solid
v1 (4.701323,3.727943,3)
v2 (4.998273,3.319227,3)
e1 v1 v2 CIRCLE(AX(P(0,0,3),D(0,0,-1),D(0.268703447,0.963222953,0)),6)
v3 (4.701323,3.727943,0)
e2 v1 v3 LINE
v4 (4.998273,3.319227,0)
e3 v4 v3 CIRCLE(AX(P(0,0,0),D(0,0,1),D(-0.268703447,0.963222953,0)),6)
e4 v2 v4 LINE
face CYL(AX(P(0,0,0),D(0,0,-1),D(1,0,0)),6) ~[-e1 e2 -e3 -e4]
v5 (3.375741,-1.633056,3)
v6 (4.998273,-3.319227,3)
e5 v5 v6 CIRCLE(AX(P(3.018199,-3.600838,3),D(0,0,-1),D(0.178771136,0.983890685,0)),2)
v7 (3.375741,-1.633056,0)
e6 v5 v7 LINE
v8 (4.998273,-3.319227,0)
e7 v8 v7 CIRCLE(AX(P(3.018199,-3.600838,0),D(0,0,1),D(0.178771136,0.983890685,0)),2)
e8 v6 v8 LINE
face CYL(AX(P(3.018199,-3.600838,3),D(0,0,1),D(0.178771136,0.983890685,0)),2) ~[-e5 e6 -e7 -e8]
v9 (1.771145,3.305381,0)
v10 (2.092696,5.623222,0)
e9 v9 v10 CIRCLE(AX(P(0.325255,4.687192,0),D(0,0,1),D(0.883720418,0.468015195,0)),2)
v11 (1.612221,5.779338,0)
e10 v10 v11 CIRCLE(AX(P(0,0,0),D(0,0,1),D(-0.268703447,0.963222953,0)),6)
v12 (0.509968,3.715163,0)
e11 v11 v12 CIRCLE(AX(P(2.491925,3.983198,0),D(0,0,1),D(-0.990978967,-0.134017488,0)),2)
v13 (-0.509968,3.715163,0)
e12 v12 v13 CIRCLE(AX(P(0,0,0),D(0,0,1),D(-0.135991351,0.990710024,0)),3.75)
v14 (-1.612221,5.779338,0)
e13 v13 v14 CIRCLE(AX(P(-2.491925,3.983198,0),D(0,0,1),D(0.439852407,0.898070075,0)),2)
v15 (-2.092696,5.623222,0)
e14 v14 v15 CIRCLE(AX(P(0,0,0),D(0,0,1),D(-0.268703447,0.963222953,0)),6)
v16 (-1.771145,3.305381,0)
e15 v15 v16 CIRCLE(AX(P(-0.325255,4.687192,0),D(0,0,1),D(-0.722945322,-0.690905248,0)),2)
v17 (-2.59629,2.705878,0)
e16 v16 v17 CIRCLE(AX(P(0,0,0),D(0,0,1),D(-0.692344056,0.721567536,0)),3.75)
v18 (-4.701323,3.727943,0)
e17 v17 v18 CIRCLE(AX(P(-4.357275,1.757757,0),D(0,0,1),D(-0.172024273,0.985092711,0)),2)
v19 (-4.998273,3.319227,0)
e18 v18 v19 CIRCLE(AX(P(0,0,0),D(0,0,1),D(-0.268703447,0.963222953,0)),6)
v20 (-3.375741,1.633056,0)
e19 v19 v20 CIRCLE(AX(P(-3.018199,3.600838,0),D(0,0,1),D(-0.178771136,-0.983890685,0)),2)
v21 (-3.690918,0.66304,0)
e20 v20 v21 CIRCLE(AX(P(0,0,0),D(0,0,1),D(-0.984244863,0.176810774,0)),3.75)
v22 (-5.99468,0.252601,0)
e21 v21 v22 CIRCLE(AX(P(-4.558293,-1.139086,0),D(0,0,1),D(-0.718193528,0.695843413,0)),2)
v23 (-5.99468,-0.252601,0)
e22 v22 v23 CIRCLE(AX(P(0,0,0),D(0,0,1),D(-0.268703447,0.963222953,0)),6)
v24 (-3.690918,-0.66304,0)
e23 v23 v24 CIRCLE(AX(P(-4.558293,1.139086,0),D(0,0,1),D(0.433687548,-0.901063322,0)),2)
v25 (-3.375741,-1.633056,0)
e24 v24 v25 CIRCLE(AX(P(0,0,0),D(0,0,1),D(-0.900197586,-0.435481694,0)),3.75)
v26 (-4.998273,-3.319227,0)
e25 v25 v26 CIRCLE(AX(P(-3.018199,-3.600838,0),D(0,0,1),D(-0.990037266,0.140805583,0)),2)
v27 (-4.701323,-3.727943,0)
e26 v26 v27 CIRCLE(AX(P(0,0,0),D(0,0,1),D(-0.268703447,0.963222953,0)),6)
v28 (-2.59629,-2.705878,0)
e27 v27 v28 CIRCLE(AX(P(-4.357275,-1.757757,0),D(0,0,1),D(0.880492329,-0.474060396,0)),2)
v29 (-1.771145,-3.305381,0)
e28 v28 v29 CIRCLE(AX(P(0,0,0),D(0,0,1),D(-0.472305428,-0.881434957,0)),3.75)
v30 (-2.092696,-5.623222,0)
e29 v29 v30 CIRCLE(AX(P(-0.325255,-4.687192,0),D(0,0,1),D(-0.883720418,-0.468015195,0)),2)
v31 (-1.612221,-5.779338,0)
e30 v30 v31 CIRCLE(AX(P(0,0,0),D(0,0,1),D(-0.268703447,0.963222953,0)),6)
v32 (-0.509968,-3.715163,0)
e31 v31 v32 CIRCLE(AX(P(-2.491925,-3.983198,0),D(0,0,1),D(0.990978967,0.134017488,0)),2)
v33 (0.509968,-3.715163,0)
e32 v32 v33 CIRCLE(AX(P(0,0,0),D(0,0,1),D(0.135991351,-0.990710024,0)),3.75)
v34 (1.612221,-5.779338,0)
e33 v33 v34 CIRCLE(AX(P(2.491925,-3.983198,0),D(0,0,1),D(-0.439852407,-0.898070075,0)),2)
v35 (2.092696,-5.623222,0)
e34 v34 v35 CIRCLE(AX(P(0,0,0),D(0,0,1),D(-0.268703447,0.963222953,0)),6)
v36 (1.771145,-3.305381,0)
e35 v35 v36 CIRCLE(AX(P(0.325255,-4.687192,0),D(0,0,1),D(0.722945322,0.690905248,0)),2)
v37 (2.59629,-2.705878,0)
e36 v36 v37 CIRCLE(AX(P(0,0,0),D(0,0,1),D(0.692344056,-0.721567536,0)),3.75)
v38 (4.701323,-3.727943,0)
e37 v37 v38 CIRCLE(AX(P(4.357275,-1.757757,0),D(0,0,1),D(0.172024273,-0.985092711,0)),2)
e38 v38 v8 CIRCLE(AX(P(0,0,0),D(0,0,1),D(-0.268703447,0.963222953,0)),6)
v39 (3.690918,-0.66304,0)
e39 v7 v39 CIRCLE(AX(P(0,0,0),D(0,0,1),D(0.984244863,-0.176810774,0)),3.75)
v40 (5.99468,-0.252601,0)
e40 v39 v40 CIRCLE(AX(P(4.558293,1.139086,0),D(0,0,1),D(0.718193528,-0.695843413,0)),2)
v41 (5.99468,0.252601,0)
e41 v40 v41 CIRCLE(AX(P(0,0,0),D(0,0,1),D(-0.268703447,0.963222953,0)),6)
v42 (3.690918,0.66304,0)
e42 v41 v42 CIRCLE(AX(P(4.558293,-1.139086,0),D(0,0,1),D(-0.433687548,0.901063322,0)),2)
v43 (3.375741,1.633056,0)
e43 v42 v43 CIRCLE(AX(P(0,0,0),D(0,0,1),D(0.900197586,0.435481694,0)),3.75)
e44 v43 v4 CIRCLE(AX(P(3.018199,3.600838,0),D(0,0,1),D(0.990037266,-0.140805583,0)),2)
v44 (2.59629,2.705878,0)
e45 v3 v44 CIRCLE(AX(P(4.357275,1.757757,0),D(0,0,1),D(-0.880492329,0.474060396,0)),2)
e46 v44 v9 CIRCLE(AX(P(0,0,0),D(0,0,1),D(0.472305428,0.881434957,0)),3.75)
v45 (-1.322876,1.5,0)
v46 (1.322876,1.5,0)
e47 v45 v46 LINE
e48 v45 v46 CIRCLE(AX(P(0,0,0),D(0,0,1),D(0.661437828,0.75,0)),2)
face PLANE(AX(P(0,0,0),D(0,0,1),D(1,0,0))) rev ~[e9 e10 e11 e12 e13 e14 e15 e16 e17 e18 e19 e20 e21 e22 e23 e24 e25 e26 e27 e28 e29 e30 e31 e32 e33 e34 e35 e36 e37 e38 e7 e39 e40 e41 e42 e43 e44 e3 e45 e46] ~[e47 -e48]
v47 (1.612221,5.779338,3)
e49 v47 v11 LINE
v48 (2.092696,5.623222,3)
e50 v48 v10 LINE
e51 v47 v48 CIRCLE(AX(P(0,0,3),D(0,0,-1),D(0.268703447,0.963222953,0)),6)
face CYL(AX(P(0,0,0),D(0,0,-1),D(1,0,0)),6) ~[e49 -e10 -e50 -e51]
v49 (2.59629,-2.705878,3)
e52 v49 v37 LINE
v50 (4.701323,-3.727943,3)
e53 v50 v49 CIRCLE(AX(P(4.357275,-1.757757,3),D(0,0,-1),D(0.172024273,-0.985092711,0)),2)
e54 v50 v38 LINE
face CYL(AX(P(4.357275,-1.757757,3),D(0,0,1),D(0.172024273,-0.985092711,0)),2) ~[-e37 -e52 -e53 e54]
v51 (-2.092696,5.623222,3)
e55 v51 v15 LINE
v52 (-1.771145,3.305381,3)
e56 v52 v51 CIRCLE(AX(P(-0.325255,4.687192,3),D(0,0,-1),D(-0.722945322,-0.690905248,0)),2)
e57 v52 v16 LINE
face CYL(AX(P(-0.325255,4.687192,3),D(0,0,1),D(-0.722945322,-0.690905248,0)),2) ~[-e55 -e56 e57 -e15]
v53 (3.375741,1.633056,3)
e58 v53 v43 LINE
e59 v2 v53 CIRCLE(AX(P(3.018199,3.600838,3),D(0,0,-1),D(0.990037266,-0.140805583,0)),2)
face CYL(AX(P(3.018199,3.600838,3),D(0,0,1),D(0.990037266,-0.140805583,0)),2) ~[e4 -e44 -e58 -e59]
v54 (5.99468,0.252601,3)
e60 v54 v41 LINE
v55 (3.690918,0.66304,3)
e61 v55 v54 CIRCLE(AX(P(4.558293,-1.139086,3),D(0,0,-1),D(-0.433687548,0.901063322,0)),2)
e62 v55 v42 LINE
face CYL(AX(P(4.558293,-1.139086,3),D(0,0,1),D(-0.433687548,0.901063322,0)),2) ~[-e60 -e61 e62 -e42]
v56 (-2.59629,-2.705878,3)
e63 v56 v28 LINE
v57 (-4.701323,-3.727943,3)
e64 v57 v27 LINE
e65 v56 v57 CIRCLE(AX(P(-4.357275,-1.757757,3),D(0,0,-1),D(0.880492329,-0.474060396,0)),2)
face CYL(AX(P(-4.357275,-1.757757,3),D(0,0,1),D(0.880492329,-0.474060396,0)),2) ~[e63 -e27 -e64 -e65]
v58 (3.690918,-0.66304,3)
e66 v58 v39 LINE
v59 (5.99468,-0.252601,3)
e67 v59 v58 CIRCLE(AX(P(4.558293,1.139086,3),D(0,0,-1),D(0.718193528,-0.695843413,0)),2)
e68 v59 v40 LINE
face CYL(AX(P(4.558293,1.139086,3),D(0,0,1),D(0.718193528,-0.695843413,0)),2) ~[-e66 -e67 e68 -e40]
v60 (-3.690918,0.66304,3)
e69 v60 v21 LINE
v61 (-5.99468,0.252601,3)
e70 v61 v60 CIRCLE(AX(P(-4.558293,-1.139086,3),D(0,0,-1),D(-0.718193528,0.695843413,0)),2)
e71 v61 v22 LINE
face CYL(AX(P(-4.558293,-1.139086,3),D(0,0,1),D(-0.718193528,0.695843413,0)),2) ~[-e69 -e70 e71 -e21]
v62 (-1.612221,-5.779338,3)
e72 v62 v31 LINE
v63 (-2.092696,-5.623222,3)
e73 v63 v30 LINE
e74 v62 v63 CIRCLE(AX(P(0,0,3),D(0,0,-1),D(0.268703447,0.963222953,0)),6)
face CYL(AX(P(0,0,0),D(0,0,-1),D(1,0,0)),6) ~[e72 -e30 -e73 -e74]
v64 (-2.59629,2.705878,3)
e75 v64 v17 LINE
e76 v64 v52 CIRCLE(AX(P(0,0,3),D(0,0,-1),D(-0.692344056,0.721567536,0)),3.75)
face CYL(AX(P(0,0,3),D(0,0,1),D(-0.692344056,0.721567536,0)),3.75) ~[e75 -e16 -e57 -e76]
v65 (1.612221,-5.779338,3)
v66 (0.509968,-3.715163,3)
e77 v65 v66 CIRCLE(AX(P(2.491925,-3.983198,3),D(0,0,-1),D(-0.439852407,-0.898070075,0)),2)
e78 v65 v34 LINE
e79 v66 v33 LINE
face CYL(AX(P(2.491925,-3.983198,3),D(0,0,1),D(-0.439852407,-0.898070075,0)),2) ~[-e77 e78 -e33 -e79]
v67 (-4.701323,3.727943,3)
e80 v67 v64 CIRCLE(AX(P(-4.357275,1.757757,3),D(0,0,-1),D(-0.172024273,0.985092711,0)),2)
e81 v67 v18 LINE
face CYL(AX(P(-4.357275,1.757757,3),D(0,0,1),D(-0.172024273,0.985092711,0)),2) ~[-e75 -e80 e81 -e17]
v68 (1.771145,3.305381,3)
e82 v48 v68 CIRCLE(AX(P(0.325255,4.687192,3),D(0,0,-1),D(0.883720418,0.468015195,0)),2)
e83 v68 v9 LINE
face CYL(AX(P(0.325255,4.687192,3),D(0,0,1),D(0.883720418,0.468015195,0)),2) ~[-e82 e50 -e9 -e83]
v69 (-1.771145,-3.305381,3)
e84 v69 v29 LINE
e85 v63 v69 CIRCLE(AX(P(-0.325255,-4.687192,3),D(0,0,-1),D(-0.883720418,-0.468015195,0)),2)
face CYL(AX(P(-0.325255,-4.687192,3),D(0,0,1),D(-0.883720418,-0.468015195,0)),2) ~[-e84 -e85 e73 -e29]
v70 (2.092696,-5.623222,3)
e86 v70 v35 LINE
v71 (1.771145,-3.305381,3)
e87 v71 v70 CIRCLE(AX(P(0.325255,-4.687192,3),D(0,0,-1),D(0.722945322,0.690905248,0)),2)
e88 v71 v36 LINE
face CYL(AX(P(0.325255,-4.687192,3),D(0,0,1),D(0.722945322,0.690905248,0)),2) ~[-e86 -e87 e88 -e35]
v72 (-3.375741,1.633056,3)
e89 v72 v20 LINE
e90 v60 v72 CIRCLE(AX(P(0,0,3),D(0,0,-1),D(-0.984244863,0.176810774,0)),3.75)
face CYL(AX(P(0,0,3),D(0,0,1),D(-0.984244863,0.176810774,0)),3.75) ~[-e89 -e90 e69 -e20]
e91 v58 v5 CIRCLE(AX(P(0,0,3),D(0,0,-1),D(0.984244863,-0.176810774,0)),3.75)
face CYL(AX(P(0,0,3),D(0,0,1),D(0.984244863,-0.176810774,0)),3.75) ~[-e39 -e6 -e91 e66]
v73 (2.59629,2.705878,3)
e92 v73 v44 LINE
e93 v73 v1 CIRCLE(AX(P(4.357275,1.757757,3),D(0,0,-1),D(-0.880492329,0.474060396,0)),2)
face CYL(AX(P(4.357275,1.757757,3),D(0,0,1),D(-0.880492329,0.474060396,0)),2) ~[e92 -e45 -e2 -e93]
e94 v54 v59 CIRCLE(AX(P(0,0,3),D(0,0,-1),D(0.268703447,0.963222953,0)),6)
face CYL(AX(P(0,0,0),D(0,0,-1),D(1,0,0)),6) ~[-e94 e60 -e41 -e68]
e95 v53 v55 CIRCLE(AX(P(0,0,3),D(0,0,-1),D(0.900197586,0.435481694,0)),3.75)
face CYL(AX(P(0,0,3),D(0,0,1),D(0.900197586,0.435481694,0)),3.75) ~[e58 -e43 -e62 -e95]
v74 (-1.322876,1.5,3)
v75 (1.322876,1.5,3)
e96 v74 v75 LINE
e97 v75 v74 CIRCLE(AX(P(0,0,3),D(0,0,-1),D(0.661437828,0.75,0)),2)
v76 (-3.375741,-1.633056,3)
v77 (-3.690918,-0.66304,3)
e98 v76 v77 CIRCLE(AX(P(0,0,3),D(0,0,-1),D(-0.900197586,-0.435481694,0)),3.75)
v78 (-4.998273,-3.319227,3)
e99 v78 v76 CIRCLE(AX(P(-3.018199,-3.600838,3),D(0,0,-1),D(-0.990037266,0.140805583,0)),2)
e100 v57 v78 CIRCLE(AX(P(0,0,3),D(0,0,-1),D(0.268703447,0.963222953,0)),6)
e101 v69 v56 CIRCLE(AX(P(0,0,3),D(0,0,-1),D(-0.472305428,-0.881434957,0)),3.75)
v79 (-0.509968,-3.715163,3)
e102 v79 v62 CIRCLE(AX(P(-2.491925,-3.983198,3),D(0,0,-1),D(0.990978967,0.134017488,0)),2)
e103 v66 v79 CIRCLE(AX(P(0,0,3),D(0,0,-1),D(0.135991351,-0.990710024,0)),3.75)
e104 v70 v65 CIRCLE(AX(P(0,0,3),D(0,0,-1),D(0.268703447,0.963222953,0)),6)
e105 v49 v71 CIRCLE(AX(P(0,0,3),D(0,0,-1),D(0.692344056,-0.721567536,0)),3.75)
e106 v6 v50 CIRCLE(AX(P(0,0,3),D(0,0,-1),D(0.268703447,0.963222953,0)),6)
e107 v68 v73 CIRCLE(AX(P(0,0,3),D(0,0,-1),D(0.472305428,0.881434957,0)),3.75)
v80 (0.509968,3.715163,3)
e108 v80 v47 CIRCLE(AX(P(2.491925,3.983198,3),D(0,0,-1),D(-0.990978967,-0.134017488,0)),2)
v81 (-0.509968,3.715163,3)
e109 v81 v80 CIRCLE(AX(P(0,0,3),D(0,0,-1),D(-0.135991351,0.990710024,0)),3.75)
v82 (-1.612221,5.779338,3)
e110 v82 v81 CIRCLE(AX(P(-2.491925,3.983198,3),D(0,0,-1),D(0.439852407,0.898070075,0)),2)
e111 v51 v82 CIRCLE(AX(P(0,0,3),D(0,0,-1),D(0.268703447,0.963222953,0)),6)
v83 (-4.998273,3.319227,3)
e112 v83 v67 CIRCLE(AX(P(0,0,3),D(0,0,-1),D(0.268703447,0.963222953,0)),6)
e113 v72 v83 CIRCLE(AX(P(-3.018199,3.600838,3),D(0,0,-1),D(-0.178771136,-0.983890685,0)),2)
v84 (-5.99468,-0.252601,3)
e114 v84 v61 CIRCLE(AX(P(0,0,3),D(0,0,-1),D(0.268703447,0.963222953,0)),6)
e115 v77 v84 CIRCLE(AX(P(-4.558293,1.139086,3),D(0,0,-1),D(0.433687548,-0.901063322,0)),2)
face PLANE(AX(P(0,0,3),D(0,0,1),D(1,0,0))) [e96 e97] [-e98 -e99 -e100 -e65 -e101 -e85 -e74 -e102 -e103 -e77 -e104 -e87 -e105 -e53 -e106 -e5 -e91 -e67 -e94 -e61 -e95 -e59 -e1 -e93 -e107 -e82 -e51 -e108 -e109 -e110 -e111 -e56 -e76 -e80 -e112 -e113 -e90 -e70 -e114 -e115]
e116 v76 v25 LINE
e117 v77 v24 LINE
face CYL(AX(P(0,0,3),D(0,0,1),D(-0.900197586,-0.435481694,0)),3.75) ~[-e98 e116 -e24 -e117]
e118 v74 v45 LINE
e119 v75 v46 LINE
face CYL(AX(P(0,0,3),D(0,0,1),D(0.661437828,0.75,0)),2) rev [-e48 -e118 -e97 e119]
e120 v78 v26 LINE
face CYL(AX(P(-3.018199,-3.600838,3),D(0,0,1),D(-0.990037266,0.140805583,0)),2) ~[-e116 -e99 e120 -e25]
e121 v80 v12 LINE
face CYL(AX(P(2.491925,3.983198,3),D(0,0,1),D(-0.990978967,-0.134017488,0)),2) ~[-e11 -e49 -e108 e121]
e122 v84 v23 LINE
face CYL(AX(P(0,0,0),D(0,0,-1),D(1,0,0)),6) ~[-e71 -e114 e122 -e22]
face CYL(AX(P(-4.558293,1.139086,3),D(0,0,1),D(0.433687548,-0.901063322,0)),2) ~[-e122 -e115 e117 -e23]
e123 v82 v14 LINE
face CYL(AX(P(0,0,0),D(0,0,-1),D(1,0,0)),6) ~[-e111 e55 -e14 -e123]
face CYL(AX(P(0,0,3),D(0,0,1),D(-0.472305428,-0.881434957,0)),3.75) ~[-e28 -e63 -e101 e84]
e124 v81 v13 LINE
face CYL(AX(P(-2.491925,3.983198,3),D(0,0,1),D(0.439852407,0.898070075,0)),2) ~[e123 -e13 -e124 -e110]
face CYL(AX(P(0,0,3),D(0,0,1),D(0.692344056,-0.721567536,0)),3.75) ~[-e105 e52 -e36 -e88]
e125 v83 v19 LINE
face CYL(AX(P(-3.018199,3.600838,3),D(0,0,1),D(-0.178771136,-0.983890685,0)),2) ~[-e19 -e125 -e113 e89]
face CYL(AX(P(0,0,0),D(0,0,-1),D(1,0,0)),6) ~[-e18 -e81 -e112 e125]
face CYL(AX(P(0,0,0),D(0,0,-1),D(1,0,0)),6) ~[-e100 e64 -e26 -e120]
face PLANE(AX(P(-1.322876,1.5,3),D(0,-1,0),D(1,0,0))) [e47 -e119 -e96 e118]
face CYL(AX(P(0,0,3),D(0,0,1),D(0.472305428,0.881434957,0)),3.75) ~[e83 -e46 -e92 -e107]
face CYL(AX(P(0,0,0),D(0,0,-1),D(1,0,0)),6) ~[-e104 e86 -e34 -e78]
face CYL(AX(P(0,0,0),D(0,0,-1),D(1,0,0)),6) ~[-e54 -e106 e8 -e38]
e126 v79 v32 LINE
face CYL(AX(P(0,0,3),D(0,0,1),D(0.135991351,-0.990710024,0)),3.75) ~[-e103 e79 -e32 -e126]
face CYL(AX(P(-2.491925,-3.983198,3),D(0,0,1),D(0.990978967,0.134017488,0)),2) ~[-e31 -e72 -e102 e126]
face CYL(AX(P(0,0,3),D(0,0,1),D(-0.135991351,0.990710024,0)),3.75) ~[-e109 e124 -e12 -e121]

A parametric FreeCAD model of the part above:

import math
import FreeCAD as App
import Part
import Sketcher
from FreeCAD import Vector

doc = App.newDocument("Part")
body = doc.addObject("PartDesign::Body", "Body")

# Sketch on XY plane
sketch1 = body.newObject("Sketcher::SketchObject", "Sketch")
sketch1.AttachmentSupport = (doc.getObject("XY_Plane"), [""])
sketch1.MapMode = "FlatFace"
sketch1.addGeometry(Part.Circle(Vector(0, 0, 0), Vector(0, 0, 1), 6), False)
sketch1.addConstraint(Sketcher.Constraint("Coincident", 0, 3, -1, 1))
sketch1.addConstraint(Sketcher.Constraint("Diameter", 0, 12.0))
pad1 = body.newObject("PartDesign::Pad", "Pad")
pad1.Profile = sketch1
pad1.Length = 3

# Sketch on XY plane
sketch2 = body.newObject("Sketcher::SketchObject", "Sketch001")
sketch2.AttachmentSupport = (doc.getObject("XY_Plane"), [""])
sketch2.MapMode = "FlatFace"
sketch2.AttachmentOffset = App.Placement(Vector(0, 0, 3), App.Rotation())
sketch2.addGeometry(Part.ArcOfCircle(Part.Circle(Vector(-2.491925, 3.983198, 0), Vector(0, 0, 1), 2), math.radians(-7.70181), math.radians(63.905536)), False)
sketch2.addGeometry(Part.ArcOfCircle(Part.Circle(Vector(0, 0, 0), Vector(0, 0, 1), 3.75), math.radians(82.184051), math.radians(97.815949)), False)
sketch2.addGeometry(Part.ArcOfCircle(Part.Circle(Vector(2.491925, 3.983198, 0), Vector(0, 0, 1), 2), math.radians(116.094464), math.radians(187.70181)), False)
sketch2.addGeometry(Part.ArcOfCircle(Part.Circle(Vector(0, 0, 0), Vector(0, 0, 1), 6), math.radians(74.412871), math.radians(105.587129)), False)
sketch2.addConstraint(Sketcher.Constraint("Coincident", 0, 1, 1, 2))
sketch2.addConstraint(Sketcher.Constraint("Coincident", 1, 1, 2, 2))
sketch2.addConstraint(Sketcher.Constraint("Coincident", 2, 1, 3, 1))
sketch2.addConstraint(Sketcher.Constraint("Coincident", 3, 2, 0, 2))
sketch2.addConstraint(Sketcher.Constraint("Coincident", 1, 3, -1, 1))
sketch2.addConstraint(Sketcher.Constraint("Coincident", 3, 3, -1, 1))
sketch2.addConstraint(Sketcher.Constraint("Equal", 0, 2))
sketch2.addConstraint(Sketcher.Constraint("Symmetric", 0, 3, 2, 3, -2))
sketch2.addConstraint(Sketcher.Constraint("Radius", 0, 2.0))
sketch2.addConstraint(Sketcher.Constraint("Radius", 3, 6.0))
sketch2.addConstraint(Sketcher.Constraint("Radius", 1, 3.75))
sketch2.addConstraint(Sketcher.Constraint("DistanceX", -1, 1, 2, 1, 1.612221))
sketch2.addConstraint(Sketcher.Constraint("DistanceX", 0, 3, 2, 3, 4.983851))
pocket1 = body.newObject("PartDesign::Pocket", "Pocket")
pocket1.Profile = sketch2
pocket1.Type = "ThroughAll"
doc.recompute()

polarpattern = body.newObject("PartDesign::PolarPattern", "PolarPattern")
polarpattern.Originals = [pocket1]
polarpattern.Axis = (doc.getObject("Z_Axis"), [""])
polarpattern.Angle = 360
polarpattern.Occurrences = 10
body.Tip = polarpattern

# Sketch on XY plane
sketch3 = body.newObject("Sketcher::SketchObject", "Sketch002")
sketch3.AttachmentSupport = (doc.getObject("XY_Plane"), [""])
sketch3.MapMode = "FlatFace"
sketch3.AttachmentOffset = App.Placement(Vector(0, 0, 3), App.Rotation())
sketch3.addGeometry(Part.LineSegment(Vector(1.322876, 1.5, 0), Vector(-1.322876, 1.5, 0)), False)
sketch3.addGeometry(Part.ArcOfCircle(Part.Circle(Vector(0, 0, 0), Vector(0, 0, 1), 2), math.radians(131.409622), math.radians(408.590378)), False)
sketch3.addConstraint(Sketcher.Constraint("Coincident", 0, 1, 1, 2))
sketch3.addConstraint(Sketcher.Constraint("Coincident", 1, 1, 0, 2))
sketch3.addConstraint(Sketcher.Constraint("Horizontal", 0))
sketch3.addConstraint(Sketcher.Constraint("Coincident", 1, 3, -1, 1))
sketch3.addConstraint(Sketcher.Constraint("Radius", 1, 2.0))
sketch3.addConstraint(Sketcher.Constraint("DistanceY", -1, 1, 0, 1, 1.5))
pocket2 = body.newObject("PartDesign::Pocket", "Pocket001")
pocket2.Profile = sketch3
pocket2.Type = "ThroughAll"

doc.recompute()
